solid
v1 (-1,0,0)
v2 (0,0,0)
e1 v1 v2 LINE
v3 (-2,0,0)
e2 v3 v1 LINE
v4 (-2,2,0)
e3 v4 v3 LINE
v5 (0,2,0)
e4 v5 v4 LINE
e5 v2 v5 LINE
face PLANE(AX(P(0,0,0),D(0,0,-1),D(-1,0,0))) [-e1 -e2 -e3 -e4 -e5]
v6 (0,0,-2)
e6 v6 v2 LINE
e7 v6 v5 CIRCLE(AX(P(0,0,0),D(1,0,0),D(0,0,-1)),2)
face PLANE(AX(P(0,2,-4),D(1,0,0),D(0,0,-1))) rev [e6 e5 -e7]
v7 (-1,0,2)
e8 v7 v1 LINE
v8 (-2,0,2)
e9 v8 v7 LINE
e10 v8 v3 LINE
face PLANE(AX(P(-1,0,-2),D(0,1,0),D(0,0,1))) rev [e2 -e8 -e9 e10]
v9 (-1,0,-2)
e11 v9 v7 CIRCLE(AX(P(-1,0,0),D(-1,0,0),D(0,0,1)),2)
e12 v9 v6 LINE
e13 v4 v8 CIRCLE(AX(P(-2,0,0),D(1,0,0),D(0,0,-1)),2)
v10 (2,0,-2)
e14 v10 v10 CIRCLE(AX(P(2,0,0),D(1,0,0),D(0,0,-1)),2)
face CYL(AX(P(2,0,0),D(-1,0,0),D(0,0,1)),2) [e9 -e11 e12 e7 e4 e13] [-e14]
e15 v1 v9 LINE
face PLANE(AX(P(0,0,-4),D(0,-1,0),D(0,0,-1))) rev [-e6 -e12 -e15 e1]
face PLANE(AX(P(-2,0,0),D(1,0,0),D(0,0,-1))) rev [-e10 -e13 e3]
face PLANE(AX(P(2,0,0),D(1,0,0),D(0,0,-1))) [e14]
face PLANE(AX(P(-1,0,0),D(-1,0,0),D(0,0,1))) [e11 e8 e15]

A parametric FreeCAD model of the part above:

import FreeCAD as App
import Part
import Sketcher
from FreeCAD import Vector

doc = App.newDocument("Part")
params = doc.addObject("Spreadsheet::Sheet", "Params")
for row, (alias, value) in enumerate([
    ("sketch1_diameter", "4 mm"),
    ("pad1_length", "4 mm"),
    ("sketch2_width", "2 mm"),
    ("pocket1_length", "4 mm"),
    ("pocket2_length", "1 mm"),
], start=1):
    params.set(f"A{row}", alias)
    params.set(f"B{row}", "=" + value)
    params.setAlias(f"B{row}", alias)

body = doc.addObject("PartDesign::Body", "Body")

# Sketch on YZ plane
sketch1 = body.newObject("Sketcher::SketchObject", "Sketch")
sketch1.AttachmentSupport = (doc.getObject("YZ_Plane"), [""])
sketch1.MapMode = "FlatFace"
sketch1.addGeometry(Part.Circle(Vector(0, 0, 0), Vector(0, 0, 1), 2), False)
sketch1.addConstraint([
    Sketcher.Constraint("Coincident", 0, 3, -1, 1),
    Sketcher.Constraint("Diameter", 0, 4.0),
])
sketch1.setExpression("Constraints[1]", "Params.sketch1_diameter")
pad1 = body.newObject("PartDesign::Pad", "Pad")
pad1.Profile = sketch1
pad1.setExpression("Length", "Params.pad1_length")
pad1.Midplane = True

# Sketch on XY plane
sketch2 = body.newObject("Sketcher::SketchObject", "Sketch001")
sketch2.AttachmentSupport = (doc.getObject("XY_Plane"), [""])
sketch2.MapMode = "FlatFace"
sketch2.addGeometry([
    Part.LineSegment(Vector(-2, 2, 0), Vector(-2, 0, 0)),
    Part.LineSegment(Vector(-2, 0, 0), Vector(0, 0, 0)),
    Part.LineSegment(Vector(0, 0, 0), Vector(0, 2, 0)),
    Part.LineSegment(Vector(0, 2, 0), Vector(-2, 2, 0)),
], False)
sketch2.addConstraint([
    Sketcher.Constraint("Coincident", 0, 2, 1, 1),
    Sketcher.Constraint("Coincident", 1, 2, 2, 1),
    Sketcher.Constraint("Coincident", 2, 2, 3, 1),
    Sketcher.Constraint("Coincident", 3, 2, 0, 1),
    Sketcher.Constraint("Vertical", 0),
    Sketcher.Constraint("Horizontal", 1),
    Sketcher.Constraint("Vertical", 2),
    Sketcher.Constraint("Horizontal", 3),
    Sketcher.Constraint("Coincident", 1, 2, -1, 1),
    Sketcher.Constraint("Equal", 3, 0),
    Sketcher.Constraint("DistanceX", 1, 1, 1, 2, 2.0),
])
sketch2.setExpression("Constraints[10]", "Params.sketch2_width")
pocket1 = body.newObject("PartDesign::Pocket", "Pocket")
pocket1.Profile = sketch2
pocket1.setExpression("Length", "Params.pocket1_length")

# Sketch on YZ plane
sketch3 = body.newObject("Sketcher::SketchObject", "Sketch002")
sketch3.AttachmentSupport = (doc.getObject("YZ_Plane"), [""])
sketch3.MapMode = "FlatFace"
sketch3.AttachmentOffset = App.Placement(Vector(0, 0, -2), App.Rotation())
sketch3.addGeometry([
    Part.LineSegment(Vector(0, -2, 0), Vector(-2.132814, -2, 0)),
    Part.LineSegment(Vector(-2.132814, -2, 0), Vector(-2.132814, 2.295225, 0)),
    Part.LineSegment(Vector(-2.132814, 2.295225, 0), Vector(0, 2.295225, 0)),
    Part.LineSegment(Vector(0, 2.295225, 0), Vector(0, -2, 0)),
], False)
sketch3.addConstraint([
    Sketcher.Constraint("Coincident", 0, 2, 1, 1),
    Sketcher.Constraint("Coincident", 1, 2, 2, 1),
    Sketcher.Constraint("Coincident", 2, 2, 3, 1),
    Sketcher.Constraint("Coincident", 3, 2, 0, 1),
    Sketcher.Constraint("Horizontal", 0),
    Sketcher.Constraint("Vertical", 1),
    Sketcher.Constraint("Horizontal", 2),
    Sketcher.Constraint("Vertical", 3),
    Sketcher.Constraint("PointOnObject", 2, 2, -2),
    Sketcher.Constraint("DistanceY", 0, 2, -1, 1, 2.0),
    Sketcher.Constraint("DistanceX", 0, 2, 0, 1, 2.132814),
    Sketcher.Constraint("DistanceY", 1, 1, 1, 2, 4.295225),
])
pocket2 = body.newObject("PartDesign::Pocket", "Pocket001")
pocket2.Profile = sketch3
pocket2.setExpression("Length", "Params.pocket2_length")
pocket2.Reversed = True

doc.recompute()
